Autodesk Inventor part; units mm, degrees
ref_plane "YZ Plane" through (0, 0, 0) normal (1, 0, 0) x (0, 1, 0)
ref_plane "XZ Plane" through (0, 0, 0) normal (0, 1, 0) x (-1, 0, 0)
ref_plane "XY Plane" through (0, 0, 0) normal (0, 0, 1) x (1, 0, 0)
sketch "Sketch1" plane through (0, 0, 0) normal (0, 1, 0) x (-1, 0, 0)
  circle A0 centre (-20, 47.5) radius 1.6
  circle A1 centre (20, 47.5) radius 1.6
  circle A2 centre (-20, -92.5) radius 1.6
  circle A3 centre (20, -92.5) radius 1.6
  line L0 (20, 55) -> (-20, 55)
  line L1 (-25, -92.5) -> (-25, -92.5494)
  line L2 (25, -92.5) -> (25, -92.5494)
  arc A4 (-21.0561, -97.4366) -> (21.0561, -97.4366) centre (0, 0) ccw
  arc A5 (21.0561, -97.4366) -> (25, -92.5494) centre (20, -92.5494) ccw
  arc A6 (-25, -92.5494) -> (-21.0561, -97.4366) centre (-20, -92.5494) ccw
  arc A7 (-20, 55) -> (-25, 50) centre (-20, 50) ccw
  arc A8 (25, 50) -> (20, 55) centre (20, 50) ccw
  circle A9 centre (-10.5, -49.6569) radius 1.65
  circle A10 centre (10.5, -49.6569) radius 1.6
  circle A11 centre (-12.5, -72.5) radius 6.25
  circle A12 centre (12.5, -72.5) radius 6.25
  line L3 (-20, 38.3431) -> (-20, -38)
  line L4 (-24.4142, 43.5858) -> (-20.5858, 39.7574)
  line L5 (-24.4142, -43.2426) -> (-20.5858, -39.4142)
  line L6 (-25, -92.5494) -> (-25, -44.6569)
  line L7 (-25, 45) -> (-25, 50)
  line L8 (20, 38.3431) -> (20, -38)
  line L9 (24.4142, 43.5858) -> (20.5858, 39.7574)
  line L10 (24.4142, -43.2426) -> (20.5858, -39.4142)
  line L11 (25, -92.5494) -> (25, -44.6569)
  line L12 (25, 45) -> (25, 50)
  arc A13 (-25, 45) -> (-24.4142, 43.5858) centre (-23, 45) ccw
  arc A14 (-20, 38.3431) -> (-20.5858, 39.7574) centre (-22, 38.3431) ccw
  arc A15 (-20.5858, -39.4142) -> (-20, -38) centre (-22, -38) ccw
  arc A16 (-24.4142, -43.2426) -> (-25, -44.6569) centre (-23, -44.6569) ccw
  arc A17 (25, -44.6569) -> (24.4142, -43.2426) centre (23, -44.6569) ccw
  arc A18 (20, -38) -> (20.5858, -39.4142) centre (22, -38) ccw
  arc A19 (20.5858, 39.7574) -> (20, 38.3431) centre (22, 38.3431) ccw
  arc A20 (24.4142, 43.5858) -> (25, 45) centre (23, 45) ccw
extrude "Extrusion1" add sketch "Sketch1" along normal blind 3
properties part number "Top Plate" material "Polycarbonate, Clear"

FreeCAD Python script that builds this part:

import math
import FreeCAD as App
import Part
import Sketcher

V = App.Vector

doc = App.newDocument("Part")
body = doc.addObject("PartDesign::Body", "Body")

sketch1 = doc.addObject("Sketcher::SketchObject", "Sketch")
body.addObject(sketch1)
sketch1.AttachmentSupport = (doc.XZ_Plane, [""])
sketch1.MapMode = "FlatFace"
sketch1.addGeometry([
    Part.ArcOfCircle(Part.Circle(V(-20, 50, 0), V(0, 0, 1), 5), math.radians(90), math.radians(180)),
    Part.LineSegment(V(-20, 55, 0), V(20, 55, 0)),
    Part.ArcOfCircle(Part.Circle(V(20, 50, 0), V(0, 0, 1), 5), math.radians(0), math.radians(90)),
    Part.LineSegment(V(25, 50, 0), V(25, 45, 0)),
    Part.ArcOfCircle(Part.Circle(V(23, 45, 0), V(0, 0, 1), 2), math.radians(-45), math.radians(0)),
    Part.LineSegment(V(24.4142, 43.5858, 0), V(20.5858, 39.7574, 0)),
    Part.ArcOfCircle(Part.Circle(V(22, 38.3431, 0), V(0, 0, 1), 2), math.radians(134.997974), math.radians(180)),
    Part.LineSegment(V(20, 38.3431, 0), V(20, -38, 0)),
    Part.ArcOfCircle(Part.Circle(V(22, -38, 0), V(0, 0, 1), 1.999981), math.radians(180), math.radians(225)),
    Part.LineSegment(V(20.5858, -39.4142, 0), V(24.4142, -43.2426, 0)),
    Part.ArcOfCircle(Part.Circle(V(23, -44.6569, 0), V(0, 0, 1), 2.000052), math.radians(0), math.radians(45.002026)),
    Part.LineSegment(V(25, -44.6569, 0), V(25, -92.5494, 0)),
    Part.ArcOfCircle(Part.Circle(V(20, -92.5494, 0), V(0, 0, 1), 5), math.radians(-77.806161), math.radians(0)),
    Part.ArcOfCircle(Part.Circle(V(0, 0, 0), V(0, 0, 1), 99.685758), math.radians(-102.194136), math.radians(-77.805864)),
    Part.ArcOfCircle(Part.Circle(V(-20, -92.5494, 0), V(0, 0, 1), 5.000007), math.radians(180), math.radians(257.806161)),
    Part.LineSegment(V(-25, -92.5494, 0), V(-25, -44.6569, 0)),
    Part.ArcOfCircle(Part.Circle(V(-23, -44.6569, 0), V(0, 0, 1), 2), math.radians(134.997974), math.radians(180)),
    Part.LineSegment(V(-24.4142, -43.2426, 0), V(-20.5858, -39.4142, 0)),
    Part.ArcOfCircle(Part.Circle(V(-22, -38, 0), V(0, 0, 1), 2), math.radians(-45), math.radians(0)),
    Part.LineSegment(V(-20, -38, 0), V(-20, 38.3431, 0)),
    Part.ArcOfCircle(Part.Circle(V(-22, 38.3431, 0), V(0, 0, 1), 2.000052), math.radians(0), math.radians(45.002026)),
    Part.LineSegment(V(-20.5858, 39.7574, 0), V(-24.4142, 43.5858, 0)),
    Part.ArcOfCircle(Part.Circle(V(-23, 45, 0), V(0, 0, 1), 1.999981), math.radians(180), math.radians(225)),
    Part.LineSegment(V(-25, 45, 0), V(-25, 50, 0)),
    Part.Circle(V(20, -92.5, 0), V(0, 0, 1), 1.6),
    Part.Circle(V(12.5, -72.5, 0), V(0, 0, 1), 6.25),
    Part.Circle(V(10.5, -49.6569, 0), V(0, 0, 1), 1.65),
    Part.Circle(V(-20, -92.5, 0), V(0, 0, 1), 1.6),
    Part.Circle(V(-12.5, -72.5, 0), V(0, 0, 1), 6.25),
    Part.Circle(V(-10.5, -49.6569, 0), V(0, 0, 1), 1.6),
    Part.Circle(V(20, 47.5, 0), V(0, 0, 1), 1.6),
    Part.Circle(V(-20, 47.5, 0), V(0, 0, 1), 1.6),
], False)
sketch1.addConstraint([
    Sketcher.Constraint("Tangent", 0, 1, 1, 1),
    Sketcher.Constraint("Tangent", 1, 2, 2, 2),
    Sketcher.Constraint("Tangent", 2, 1, 3, 1),
    Sketcher.Constraint("Tangent", 3, 2, 4, 2),
    Sketcher.Constraint("Tangent", 4, 1, 5, 1),
    Sketcher.Constraint("Tangent", 5, 2, 6, 1),
    Sketcher.Constraint("Tangent", 6, 2, 7, 1),
    Sketcher.Constraint("Tangent", 7, 2, 8, 1),
    Sketcher.Constraint("Tangent", 8, 2, 9, 1),
    Sketcher.Constraint("Tangent", 9, 2, 10, 2),
    Sketcher.Constraint("Tangent", 10, 1, 11, 1),
    Sketcher.Constraint("Tangent", 11, 2, 12, 2),
    Sketcher.Constraint("Tangent", 12, 1, 13, 2),
    Sketcher.Constraint("Tangent", 13, 1, 14, 2),
    Sketcher.Constraint("Tangent", 14, 1, 15, 1),
    Sketcher.Constraint("Tangent", 15, 2, 16, 2),
    Sketcher.Constraint("Tangent", 16, 1, 17, 1),
    Sketcher.Constraint("Tangent", 17, 2, 18, 1),
    Sketcher.Constraint("Tangent", 18, 2, 19, 1),
    Sketcher.Constraint("Tangent", 19, 2, 20, 1),
    Sketcher.Constraint("Tangent", 20, 2, 21, 1),
    Sketcher.Constraint("Tangent", 21, 2, 22, 2),
    Sketcher.Constraint("Tangent", 22, 1, 23, 1),
    Sketcher.Constraint("Tangent", 23, 2, 0, 2),
    Sketcher.Constraint("Horizontal", 1),
    Sketcher.Constraint("Vertical", 3),
    Sketcher.Constraint("Vertical", 7),
    Sketcher.Constraint("Vertical", 11),
    Sketcher.Constraint("Vertical", 15),
    Sketcher.Constraint("Vertical", 19),
    Sketcher.Constraint("Vertical", 23),
    Sketcher.Constraint("Coincident", 13, 3, -1, 1),
    Sketcher.Constraint("Equal", 0, 2),
    Sketcher.Constraint("Equal", 4, 6),
    Sketcher.Constraint("Equal", 6, 8),
    Sketcher.Constraint("Equal", 8, 10),
    Sketcher.Constraint("Equal", 2, 12),
    Sketcher.Constraint("Equal", 12, 14),
    Sketcher.Constraint("Equal", 10, 16),
    Sketcher.Constraint("Equal", 16, 18),
    Sketcher.Constraint("Equal", 18, 20),
    Sketcher.Constraint("Equal", 20, 22),
    Sketcher.Constraint("Equal", 24, 27),
    Sketcher.Constraint("Equal", 25, 28),
    Sketcher.Constraint("Equal", 27, 29),
    Sketcher.Constraint("Equal", 29, 30),
    Sketcher.Constraint("Equal", 30, 31),
    Sketcher.Constraint("Symmetric", 10, 3, 16, 3, -2),
    Sketcher.Constraint("Symmetric", 8, 3, 18, 3, -2),
    Sketcher.Constraint("Symmetric", 4, 3, 22, 3, -2),
    Sketcher.Constraint("Symmetric", 24, 3, 27, 3, -2),
    Sketcher.Constraint("Symmetric", 25, 3, 28, 3, -2),
    Sketcher.Constraint("Symmetric", 26, 3, 29, 3, -2),
    Sketcher.Constraint("Symmetric", 30, 3, 31, 3, -2),
    Sketcher.Constraint("Perpendicular", 5, 9),
    Sketcher.Constraint("Perpendicular", 9, 17),
    Sketcher.Constraint("Perpendicular", 17, 21),
    Sketcher.Constraint("Vertical", 4, 3, 10, 3),
    Sketcher.Constraint("Vertical", 12, 3, 24, 3),
    Sketcher.Constraint("Vertical", 24, 3, 30, 3),
    Sketcher.Constraint("Vertical", 1, 2, 6, 2),
    Sketcher.Constraint("Radius", 0, 5.0),
    Sketcher.Constraint("Radius", 4, 2.0),
    Sketcher.Constraint("Diameter", 24, 3.2),
    Sketcher.Constraint("Diameter", 25, 12.5),
    Sketcher.Constraint("Diameter", 26, 3.3),
    Sketcher.Constraint("DistanceX", 1, 1, 1, 2, 40.0),
    Sketcher.Constraint("DistanceY", 3, 2, 3, 1, 5.0),
    Sketcher.Constraint("DistanceY", -1, 1, 0, 3, 50.0),
    Sketcher.Constraint("DistanceY", 8, 3, -1, 1, 38.0),
    Sketcher.Constraint("DistanceY", 24, 3, 25, 3, 20.0),
    Sketcher.Constraint("DistanceY", 26, 3, 10, 3, 5.0),
    Sketcher.Constraint("DistanceX", 26, 3, 25, 3, 2.0),
    Sketcher.Constraint("DistanceX", 28, 3, 25, 3, 25.0),
    Sketcher.Constraint("DistanceY", 24, 3, -1, 1, 92.5),
    Sketcher.Constraint("DistanceY", -1, 1, 30, 3, 47.5),
    Sketcher.Constraint("Radius", 13, 99.6858),
])
pad1 = doc.addObject("PartDesign::Pad", "Pad")
body.addObject(pad1)
pad1.Profile = sketch1
pad1.Length = 3
pad1.Reversed = True

doc.recompute()
